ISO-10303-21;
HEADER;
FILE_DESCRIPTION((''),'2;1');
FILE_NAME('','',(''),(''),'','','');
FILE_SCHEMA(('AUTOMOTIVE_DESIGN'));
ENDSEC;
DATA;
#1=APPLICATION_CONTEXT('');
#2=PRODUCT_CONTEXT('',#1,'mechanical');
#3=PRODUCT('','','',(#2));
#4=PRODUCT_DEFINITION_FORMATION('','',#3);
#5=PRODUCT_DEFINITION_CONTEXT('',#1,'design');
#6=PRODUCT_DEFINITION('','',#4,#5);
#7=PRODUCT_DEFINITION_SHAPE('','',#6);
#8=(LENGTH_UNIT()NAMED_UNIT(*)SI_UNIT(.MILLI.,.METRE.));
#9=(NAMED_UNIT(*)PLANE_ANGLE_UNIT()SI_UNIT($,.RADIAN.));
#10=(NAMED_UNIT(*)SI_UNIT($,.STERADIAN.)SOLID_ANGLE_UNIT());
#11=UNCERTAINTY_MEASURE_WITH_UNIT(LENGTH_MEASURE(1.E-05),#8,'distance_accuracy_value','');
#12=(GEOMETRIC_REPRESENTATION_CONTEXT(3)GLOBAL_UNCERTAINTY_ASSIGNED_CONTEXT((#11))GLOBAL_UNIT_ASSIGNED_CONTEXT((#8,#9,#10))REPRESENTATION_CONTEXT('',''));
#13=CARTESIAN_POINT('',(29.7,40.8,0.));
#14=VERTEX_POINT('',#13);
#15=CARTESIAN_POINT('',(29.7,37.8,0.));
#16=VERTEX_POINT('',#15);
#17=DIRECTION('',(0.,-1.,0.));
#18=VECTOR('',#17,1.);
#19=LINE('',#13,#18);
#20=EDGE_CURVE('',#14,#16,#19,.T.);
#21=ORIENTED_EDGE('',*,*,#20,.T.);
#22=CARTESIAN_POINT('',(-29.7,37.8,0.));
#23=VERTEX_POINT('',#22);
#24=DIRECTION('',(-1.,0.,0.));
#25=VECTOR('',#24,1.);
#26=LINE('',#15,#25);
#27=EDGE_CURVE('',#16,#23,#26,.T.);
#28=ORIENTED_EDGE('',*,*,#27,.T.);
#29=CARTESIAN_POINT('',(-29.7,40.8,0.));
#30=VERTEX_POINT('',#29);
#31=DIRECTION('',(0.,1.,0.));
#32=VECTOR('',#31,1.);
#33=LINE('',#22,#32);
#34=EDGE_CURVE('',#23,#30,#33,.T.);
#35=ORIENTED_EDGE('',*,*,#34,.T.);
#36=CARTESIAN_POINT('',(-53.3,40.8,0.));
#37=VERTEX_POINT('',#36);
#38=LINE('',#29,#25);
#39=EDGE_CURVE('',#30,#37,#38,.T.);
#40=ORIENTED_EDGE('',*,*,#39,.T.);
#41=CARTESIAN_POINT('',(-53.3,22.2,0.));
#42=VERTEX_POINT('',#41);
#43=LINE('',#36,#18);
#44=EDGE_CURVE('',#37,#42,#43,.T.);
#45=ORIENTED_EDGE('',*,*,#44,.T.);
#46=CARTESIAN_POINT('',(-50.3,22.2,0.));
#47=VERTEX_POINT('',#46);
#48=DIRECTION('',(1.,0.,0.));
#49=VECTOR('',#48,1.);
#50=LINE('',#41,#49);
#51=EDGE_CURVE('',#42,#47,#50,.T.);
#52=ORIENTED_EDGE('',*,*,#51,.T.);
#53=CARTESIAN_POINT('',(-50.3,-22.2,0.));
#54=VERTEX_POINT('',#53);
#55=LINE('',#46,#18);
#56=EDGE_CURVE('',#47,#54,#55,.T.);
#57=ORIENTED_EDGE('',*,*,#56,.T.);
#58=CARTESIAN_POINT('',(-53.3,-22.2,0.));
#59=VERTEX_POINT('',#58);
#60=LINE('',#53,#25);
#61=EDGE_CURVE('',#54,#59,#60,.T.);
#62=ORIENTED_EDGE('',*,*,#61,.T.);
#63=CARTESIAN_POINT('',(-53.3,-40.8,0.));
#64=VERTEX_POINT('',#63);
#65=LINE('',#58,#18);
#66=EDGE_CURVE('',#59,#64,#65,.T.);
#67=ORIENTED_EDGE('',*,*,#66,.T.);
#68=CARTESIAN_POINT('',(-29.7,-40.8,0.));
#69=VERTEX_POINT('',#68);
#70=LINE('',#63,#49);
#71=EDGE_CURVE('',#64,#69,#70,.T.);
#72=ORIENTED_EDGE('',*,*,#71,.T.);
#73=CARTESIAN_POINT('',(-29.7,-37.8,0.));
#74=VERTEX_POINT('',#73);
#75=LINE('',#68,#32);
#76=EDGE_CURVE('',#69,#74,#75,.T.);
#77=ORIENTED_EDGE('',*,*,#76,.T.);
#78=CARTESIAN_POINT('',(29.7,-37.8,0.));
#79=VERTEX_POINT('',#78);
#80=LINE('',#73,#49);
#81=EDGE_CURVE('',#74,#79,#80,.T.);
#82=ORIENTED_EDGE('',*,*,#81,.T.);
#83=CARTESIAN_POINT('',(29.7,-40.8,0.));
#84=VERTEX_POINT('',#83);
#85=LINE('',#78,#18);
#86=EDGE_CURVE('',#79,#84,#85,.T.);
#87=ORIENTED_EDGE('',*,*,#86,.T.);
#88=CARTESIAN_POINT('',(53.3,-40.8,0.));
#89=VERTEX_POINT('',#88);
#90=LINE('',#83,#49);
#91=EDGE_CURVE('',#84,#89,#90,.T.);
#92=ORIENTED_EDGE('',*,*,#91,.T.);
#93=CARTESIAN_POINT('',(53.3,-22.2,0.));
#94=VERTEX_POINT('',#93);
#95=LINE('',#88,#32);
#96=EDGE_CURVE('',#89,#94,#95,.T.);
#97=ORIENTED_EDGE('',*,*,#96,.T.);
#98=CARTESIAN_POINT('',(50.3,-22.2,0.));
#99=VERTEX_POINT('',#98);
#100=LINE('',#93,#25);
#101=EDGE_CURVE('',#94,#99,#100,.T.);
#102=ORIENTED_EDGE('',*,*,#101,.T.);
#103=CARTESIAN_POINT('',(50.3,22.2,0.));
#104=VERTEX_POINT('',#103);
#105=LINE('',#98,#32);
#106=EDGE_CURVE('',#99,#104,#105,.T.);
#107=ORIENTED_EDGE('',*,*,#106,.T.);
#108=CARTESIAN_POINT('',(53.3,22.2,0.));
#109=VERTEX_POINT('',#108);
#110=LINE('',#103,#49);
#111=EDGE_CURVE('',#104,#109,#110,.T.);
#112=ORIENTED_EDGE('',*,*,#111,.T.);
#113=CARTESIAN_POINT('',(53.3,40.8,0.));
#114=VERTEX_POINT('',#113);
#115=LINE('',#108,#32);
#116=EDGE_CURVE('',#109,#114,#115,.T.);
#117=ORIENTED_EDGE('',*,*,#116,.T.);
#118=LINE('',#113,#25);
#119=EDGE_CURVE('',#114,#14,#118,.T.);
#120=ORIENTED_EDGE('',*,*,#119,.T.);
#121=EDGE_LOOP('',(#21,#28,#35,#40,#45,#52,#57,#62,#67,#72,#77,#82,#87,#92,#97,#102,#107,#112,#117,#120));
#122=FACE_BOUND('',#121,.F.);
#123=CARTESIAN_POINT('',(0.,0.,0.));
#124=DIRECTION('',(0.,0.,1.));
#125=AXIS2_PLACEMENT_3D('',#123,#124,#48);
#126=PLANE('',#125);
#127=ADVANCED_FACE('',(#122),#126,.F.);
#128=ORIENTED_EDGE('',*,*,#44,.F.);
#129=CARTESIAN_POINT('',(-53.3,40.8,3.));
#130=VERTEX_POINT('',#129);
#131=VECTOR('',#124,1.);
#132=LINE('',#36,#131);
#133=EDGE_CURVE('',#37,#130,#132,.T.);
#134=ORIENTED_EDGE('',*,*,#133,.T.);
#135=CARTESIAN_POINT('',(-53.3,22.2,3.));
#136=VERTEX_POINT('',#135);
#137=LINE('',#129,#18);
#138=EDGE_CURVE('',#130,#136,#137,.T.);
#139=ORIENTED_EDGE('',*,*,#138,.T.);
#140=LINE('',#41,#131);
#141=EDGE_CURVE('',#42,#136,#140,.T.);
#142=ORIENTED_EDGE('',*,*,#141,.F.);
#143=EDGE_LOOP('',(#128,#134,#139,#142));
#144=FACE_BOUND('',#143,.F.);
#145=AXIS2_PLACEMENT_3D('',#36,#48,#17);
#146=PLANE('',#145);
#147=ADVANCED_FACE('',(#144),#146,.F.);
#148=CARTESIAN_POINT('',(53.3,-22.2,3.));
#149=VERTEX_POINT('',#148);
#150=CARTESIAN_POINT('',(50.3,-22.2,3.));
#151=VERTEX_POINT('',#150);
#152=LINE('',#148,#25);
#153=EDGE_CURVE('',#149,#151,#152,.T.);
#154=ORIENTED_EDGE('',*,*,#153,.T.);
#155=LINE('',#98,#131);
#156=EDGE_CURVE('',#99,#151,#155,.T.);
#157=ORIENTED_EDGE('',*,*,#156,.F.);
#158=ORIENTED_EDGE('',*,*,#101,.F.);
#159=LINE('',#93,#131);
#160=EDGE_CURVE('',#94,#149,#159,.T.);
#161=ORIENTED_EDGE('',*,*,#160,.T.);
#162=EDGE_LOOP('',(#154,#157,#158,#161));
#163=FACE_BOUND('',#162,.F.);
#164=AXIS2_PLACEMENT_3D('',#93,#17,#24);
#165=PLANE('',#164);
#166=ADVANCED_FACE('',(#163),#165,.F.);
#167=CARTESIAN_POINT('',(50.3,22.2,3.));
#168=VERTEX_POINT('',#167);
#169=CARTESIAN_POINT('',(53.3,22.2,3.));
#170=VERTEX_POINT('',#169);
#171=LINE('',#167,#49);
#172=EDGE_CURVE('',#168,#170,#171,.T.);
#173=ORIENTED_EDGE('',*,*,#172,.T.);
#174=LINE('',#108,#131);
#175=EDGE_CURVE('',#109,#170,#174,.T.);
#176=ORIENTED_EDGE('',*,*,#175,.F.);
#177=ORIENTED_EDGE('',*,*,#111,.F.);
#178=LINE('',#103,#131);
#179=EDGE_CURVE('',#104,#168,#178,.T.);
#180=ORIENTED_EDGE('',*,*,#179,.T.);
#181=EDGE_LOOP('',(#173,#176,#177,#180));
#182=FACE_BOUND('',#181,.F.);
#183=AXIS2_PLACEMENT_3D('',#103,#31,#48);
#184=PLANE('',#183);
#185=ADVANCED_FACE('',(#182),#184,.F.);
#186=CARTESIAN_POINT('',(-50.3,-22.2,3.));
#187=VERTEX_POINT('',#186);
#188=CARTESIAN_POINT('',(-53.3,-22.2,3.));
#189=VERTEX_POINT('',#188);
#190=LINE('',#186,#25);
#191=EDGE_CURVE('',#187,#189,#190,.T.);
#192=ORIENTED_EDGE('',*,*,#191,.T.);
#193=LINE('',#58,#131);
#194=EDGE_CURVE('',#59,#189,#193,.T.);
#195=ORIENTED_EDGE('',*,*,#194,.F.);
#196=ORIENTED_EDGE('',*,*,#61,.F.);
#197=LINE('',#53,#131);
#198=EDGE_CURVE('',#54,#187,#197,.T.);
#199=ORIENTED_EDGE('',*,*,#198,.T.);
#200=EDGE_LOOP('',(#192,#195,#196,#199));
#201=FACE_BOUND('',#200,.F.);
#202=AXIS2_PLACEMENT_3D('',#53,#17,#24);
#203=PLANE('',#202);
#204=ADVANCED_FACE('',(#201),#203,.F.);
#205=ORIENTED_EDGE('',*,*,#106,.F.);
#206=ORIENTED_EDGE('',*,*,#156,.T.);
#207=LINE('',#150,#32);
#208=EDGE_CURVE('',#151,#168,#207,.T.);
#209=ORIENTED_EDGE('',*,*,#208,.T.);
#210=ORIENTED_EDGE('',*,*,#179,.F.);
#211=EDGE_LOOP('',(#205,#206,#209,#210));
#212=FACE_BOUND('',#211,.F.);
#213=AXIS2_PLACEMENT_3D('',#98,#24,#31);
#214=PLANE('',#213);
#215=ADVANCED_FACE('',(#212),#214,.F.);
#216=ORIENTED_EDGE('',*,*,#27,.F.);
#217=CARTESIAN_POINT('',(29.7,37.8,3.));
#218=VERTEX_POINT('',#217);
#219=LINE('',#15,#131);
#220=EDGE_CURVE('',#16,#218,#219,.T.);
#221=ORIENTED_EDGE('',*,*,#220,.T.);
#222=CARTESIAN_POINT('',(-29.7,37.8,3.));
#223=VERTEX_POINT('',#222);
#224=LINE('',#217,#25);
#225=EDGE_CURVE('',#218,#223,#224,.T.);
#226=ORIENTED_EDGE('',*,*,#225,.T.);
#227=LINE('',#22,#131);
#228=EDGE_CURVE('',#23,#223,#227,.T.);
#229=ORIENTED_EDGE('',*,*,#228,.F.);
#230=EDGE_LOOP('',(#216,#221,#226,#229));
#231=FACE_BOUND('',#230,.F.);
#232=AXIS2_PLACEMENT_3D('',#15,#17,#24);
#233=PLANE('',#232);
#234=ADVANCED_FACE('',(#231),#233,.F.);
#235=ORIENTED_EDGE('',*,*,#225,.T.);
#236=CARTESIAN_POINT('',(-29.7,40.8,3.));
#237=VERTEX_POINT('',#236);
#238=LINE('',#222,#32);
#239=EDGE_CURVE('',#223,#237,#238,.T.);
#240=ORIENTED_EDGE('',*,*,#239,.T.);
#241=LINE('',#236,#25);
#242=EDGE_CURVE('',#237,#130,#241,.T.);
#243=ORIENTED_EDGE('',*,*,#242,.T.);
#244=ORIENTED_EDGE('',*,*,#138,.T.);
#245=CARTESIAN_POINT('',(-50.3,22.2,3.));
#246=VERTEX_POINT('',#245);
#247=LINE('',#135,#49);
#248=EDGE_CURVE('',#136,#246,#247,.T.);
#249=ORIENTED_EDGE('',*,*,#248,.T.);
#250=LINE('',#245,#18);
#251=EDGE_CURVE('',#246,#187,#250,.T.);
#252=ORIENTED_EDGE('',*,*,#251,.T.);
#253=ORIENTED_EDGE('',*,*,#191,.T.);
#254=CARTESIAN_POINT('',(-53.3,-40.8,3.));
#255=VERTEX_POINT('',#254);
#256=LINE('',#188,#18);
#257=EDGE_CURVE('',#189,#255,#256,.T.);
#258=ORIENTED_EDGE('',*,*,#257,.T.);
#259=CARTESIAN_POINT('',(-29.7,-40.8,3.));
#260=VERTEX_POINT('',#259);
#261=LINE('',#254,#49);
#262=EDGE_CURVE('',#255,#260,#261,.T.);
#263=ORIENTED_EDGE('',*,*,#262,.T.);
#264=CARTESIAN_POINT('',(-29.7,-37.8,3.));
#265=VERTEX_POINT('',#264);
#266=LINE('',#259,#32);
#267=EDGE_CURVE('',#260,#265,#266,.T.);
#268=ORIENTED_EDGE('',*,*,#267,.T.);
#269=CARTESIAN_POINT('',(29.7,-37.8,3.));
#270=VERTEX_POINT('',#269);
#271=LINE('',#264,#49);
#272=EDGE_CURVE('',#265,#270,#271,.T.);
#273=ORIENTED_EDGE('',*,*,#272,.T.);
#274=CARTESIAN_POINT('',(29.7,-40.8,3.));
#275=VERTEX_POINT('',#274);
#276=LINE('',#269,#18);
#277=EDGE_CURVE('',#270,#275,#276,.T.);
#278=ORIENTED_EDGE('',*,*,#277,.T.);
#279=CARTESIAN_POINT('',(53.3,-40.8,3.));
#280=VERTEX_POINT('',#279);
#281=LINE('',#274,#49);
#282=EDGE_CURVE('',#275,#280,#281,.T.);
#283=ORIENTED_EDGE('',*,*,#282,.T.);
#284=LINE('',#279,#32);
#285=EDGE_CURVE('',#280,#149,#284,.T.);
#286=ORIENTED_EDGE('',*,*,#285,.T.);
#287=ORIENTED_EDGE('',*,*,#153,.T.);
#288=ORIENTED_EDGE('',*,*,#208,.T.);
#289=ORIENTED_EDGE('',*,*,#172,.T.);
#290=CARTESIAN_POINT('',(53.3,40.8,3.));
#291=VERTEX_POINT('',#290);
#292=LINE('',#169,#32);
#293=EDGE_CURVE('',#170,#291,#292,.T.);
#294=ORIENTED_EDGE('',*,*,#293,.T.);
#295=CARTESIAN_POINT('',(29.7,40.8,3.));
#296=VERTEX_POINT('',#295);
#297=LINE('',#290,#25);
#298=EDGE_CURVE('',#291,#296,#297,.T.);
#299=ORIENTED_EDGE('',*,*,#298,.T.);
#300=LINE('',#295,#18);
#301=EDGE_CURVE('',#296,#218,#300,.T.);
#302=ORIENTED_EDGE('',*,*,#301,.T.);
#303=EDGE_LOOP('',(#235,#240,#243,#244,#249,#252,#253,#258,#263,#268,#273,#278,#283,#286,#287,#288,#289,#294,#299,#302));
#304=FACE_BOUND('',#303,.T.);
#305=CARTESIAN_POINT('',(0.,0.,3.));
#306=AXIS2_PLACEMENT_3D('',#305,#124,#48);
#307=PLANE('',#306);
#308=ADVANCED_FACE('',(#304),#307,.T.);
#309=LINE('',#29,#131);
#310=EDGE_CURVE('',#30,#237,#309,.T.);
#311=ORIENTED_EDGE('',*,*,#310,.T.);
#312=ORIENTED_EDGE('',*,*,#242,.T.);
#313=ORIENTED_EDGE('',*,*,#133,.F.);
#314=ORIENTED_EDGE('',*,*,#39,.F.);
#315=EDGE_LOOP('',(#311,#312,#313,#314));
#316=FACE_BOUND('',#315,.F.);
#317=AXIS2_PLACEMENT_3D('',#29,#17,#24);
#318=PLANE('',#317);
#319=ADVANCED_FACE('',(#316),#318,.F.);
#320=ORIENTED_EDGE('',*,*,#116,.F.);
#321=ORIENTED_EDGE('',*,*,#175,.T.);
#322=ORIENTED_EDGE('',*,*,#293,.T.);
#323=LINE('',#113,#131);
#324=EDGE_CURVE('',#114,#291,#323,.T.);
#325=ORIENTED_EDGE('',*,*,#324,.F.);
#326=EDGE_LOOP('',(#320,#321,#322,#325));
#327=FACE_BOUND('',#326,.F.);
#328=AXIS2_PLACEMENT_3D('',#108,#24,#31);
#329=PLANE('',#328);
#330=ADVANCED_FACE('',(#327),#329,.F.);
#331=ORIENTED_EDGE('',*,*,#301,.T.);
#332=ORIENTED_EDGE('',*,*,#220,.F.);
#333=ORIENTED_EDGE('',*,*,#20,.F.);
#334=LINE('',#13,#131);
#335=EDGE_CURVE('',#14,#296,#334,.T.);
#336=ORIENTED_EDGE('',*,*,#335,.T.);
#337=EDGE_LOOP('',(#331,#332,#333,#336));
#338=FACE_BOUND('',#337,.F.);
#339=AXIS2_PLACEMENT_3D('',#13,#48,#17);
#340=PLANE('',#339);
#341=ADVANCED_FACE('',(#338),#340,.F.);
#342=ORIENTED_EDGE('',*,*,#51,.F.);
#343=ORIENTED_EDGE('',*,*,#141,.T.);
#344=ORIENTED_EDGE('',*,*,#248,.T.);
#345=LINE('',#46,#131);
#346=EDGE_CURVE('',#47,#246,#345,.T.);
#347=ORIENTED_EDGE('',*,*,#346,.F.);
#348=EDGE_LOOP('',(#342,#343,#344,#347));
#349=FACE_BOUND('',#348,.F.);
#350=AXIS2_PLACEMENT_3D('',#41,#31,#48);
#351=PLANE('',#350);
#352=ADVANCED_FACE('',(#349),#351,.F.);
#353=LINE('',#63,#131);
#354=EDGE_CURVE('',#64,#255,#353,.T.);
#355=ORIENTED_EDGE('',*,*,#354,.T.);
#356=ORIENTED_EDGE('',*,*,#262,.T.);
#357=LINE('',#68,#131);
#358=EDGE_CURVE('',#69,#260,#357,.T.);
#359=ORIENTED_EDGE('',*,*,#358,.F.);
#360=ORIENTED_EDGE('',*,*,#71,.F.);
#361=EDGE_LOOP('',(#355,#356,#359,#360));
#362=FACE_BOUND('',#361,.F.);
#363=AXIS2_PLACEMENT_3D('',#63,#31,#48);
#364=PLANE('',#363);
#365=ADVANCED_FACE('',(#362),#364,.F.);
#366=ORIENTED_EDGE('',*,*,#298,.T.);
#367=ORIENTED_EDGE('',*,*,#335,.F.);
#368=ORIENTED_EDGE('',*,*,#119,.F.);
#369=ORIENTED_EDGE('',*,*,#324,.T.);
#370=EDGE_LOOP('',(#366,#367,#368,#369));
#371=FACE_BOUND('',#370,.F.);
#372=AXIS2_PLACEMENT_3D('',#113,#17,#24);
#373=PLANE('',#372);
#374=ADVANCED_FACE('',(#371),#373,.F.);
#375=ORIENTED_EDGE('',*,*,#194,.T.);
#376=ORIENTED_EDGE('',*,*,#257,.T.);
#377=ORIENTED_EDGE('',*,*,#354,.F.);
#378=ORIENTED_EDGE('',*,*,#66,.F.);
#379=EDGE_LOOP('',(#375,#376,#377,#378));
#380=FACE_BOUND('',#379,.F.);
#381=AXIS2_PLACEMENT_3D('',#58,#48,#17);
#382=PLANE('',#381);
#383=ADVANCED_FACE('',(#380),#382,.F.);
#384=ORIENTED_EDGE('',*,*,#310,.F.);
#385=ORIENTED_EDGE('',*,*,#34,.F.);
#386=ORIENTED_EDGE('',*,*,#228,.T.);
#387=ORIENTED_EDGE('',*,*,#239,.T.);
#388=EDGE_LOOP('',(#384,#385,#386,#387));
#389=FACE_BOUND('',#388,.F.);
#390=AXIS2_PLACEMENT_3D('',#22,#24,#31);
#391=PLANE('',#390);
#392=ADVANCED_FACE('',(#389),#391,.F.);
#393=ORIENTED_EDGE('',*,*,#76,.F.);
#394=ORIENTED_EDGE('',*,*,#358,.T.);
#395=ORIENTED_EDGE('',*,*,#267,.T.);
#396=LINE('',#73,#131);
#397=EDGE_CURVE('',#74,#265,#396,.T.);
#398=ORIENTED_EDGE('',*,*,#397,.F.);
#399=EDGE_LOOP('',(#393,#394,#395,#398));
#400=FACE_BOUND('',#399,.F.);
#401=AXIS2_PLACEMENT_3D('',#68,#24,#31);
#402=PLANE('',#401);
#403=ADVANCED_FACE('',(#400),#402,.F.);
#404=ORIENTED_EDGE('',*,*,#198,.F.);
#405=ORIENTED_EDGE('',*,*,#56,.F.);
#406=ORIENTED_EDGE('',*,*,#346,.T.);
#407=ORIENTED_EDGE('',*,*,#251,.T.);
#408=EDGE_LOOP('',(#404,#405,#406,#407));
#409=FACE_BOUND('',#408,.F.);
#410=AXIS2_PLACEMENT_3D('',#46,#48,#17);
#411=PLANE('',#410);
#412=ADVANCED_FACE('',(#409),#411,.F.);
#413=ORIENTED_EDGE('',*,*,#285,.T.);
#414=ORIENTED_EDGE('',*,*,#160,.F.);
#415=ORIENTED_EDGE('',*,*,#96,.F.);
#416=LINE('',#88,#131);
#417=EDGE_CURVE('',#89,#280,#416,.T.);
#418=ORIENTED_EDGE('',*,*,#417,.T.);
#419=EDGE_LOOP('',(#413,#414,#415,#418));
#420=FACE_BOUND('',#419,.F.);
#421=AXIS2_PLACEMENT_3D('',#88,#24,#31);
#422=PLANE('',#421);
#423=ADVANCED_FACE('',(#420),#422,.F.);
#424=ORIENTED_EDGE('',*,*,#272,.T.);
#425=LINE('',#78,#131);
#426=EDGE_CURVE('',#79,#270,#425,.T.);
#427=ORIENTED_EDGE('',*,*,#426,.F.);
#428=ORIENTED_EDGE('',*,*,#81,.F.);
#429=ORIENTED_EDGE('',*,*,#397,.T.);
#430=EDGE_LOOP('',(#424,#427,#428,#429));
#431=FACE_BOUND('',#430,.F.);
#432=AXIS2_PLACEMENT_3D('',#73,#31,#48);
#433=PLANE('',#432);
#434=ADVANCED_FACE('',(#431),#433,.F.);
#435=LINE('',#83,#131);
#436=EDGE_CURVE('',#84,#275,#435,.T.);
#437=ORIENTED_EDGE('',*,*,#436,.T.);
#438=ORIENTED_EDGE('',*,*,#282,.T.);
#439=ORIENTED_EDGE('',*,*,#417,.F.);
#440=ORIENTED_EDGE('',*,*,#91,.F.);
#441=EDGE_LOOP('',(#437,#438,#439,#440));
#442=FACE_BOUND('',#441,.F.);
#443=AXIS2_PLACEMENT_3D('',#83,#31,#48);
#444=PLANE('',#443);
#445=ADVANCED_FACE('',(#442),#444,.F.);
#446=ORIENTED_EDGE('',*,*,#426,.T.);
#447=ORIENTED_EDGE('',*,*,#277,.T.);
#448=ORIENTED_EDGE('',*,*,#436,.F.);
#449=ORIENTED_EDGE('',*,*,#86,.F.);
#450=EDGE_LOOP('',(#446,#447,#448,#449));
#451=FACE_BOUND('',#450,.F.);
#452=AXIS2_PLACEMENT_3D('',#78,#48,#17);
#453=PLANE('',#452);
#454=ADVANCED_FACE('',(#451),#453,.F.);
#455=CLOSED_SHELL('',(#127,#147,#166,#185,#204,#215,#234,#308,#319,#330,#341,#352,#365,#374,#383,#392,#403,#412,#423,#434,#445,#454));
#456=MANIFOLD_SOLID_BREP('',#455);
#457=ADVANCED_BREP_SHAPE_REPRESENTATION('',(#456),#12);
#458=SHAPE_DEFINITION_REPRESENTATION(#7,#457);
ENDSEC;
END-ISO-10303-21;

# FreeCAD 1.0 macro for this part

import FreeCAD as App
import Part
import Sketcher


def add_polygon(sketch, points):
    """Adds a closed chain of lines whose ends are joined by coincident constraints."""
    first, n = sketch.GeometryCount, len(points)
    for a, b in zip(points, points[1:] + points[:1]):
        sketch.addGeometry(Part.LineSegment(App.Vector(*a, 0), App.Vector(*b, 0)), False)
    for i in range(n):
        sketch.addConstraint(Sketcher.Constraint("Coincident", first + i, 2, first + (i + 1) % n, 1))

doc = App.newDocument("Part")
body = doc.addObject("PartDesign::Body", "Body")

# Sketch on XY plane
sketch1 = doc.addObject("Sketcher::SketchObject", "Sketch")
body.addObject(sketch1)
sketch1.AttachmentSupport = (doc.XY_Plane, [""])
sketch1.MapMode = "FlatFace"
add_polygon(sketch1, [(-29.7, 37.8), (-29.7, 40.8), (-53.3, 40.8), (-53.3, 22.2), (-50.3, 22.2), (-50.3, -22.2), (-53.3, -22.2), (-53.3, -40.8), (-29.7, -40.8), (-29.7, -37.8), (29.7, -37.8), (29.7, -40.8), (53.3, -40.8), (53.3, -22.2), (50.3, -22.2), (50.3, 22.2), (53.3, 22.2), (53.3, 40.8), (29.7, 40.8), (29.7, 37.8)])  # lines 0-19
sketch1.addConstraint(Sketcher.Constraint("Vertical", 0))
sketch1.addConstraint(Sketcher.Constraint("Horizontal", 1))
sketch1.addConstraint(Sketcher.Constraint("Vertical", 2))
sketch1.addConstraint(Sketcher.Constraint("Horizontal", 3))
sketch1.addConstraint(Sketcher.Constraint("Vertical", 4))
sketch1.addConstraint(Sketcher.Constraint("Horizontal", 5))
sketch1.addConstraint(Sketcher.Constraint("Vertical", 6))
sketch1.addConstraint(Sketcher.Constraint("Horizontal", 7))
sketch1.addConstraint(Sketcher.Constraint("Vertical", 8))
sketch1.addConstraint(Sketcher.Constraint("Horizontal", 9))
sketch1.addConstraint(Sketcher.Constraint("Vertical", 10))
sketch1.addConstraint(Sketcher.Constraint("Horizontal", 11))
sketch1.addConstraint(Sketcher.Constraint("Vertical", 12))
sketch1.addConstraint(Sketcher.Constraint("Horizontal", 13))
sketch1.addConstraint(Sketcher.Constraint("Vertical", 14))
sketch1.addConstraint(Sketcher.Constraint("Horizontal", 15))
sketch1.addConstraint(Sketcher.Constraint("Vertical", 16))
sketch1.addConstraint(Sketcher.Constraint("Horizontal", 17))
sketch1.addConstraint(Sketcher.Constraint("Vertical", 18))
sketch1.addConstraint(Sketcher.Constraint("Horizontal", 19))
sketch1.addConstraint(Sketcher.Constraint("Symmetric", 0, 2, 10, 2, -1, 1))
sketch1.addConstraint(Sketcher.Constraint("Symmetric", 2, 2, 12, 2, -1, 1))
sketch1.addConstraint(Sketcher.Constraint("Symmetric", 4, 2, 14, 2, -1, 1))
sketch1.addConstraint(Sketcher.Constraint("Symmetric", 6, 2, 16, 2, -1, 1))
sketch1.addConstraint(Sketcher.Constraint("Symmetric", 8, 2, 18, 2, -1, 1))
sketch1.addConstraint(Sketcher.Constraint("Symmetric", 7, 2, 10, 2, -2))
sketch1.addConstraint(Sketcher.Constraint("Symmetric", 5, 2, 12, 2, -2))
sketch1.addConstraint(Sketcher.Constraint("Equal", 15, 0))
sketch1.addConstraint(Sketcher.Constraint("DistanceX", 3, 1, 3, 2, 3.0))
sketch1.addConstraint(Sketcher.Constraint("DistanceX", 1, 2, 1, 1, 23.6))
sketch1.addConstraint(Sketcher.Constraint("DistanceX", 9, 1, 9, 2, 59.4))
sketch1.addConstraint(Sketcher.Constraint("DistanceY", 2, 2, 2, 1, 18.6))
sketch1.addConstraint(Sketcher.Constraint("DistanceY", 4, 2, 4, 1, 44.4))
pad1 = doc.addObject("PartDesign::Pad", "Pad")
body.addObject(pad1)
pad1.Profile = sketch1
pad1.Length = 3

doc.recompute()
